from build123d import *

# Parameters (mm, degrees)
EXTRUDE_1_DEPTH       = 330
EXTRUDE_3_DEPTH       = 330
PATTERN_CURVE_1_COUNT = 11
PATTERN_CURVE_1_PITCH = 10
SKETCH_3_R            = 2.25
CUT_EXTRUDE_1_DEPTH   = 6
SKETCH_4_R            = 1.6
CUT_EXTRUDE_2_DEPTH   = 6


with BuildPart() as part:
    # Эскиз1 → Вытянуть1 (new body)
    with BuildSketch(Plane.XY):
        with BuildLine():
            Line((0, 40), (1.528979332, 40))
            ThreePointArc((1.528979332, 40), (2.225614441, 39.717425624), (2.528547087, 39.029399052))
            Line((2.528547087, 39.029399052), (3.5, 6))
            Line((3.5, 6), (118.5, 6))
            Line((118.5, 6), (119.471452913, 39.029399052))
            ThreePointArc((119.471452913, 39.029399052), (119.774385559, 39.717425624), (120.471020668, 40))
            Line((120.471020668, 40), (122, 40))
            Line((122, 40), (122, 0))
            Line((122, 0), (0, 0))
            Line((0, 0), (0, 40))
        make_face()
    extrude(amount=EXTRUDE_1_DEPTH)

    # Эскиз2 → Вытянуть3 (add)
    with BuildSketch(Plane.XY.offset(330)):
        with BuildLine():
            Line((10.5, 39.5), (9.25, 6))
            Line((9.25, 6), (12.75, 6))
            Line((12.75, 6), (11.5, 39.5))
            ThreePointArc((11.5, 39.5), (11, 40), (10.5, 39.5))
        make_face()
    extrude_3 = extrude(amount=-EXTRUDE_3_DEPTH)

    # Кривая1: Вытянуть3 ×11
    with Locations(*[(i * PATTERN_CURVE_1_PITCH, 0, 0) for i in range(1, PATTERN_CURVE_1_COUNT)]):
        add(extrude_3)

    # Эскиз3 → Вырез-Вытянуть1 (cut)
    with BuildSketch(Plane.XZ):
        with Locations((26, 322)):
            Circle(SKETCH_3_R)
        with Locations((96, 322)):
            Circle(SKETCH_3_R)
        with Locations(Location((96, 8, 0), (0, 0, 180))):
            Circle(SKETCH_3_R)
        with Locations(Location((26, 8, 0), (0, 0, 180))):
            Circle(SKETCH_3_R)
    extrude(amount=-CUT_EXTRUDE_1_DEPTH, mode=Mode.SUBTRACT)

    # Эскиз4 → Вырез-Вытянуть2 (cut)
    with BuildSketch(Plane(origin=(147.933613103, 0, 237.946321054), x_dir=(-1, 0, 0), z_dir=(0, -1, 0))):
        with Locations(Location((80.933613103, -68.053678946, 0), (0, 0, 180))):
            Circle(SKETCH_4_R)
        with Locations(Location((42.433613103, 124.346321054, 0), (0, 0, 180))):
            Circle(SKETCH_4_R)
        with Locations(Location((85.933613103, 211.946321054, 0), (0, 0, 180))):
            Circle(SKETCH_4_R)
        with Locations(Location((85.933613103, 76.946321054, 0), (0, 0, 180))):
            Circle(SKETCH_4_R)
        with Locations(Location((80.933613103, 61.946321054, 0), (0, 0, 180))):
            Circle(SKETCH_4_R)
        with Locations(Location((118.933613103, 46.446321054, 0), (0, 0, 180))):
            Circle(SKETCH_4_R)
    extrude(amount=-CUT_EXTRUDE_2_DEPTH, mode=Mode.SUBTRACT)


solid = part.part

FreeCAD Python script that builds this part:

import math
import FreeCAD as App
import Part
import Sketcher
Q = App.Units.Quantity

doc = App.newDocument("Part")
params = doc.addObject("Spreadsheet::Sheet", "Params")
for row, (alias, value) in enumerate([
    ("sketch1_radius", "1 mm"),
    ("sketch1_width", "122 mm"),
    ("sketch1_width2", "115 mm"),
    ("sketch1_height", "40 mm"),
    ("pad1_length", "330 mm"),
    ("sketch2_radius", "0.5 mm"),
    ("sketch2_width", "3.5 mm"),
    ("pad2_length", "330 mm"),
    ("linearpattern_pitch", "10 mm"),
    ("sketch3_diameter", "4.5 mm"),
    ("pocket1_length", "6 mm"),
    ("sketch4_diameter", "3.2 mm"),
    ("pocket2_length", "6 mm"),
], start=1):
    params.set(f"A{row}", alias)
    params.set(f"B{row}", "=" + value)
    params.setAlias(f"B{row}", alias)

body = doc.addObject("PartDesign::Body", "Body")

# Sketch on XY plane
sketch1 = doc.addObject("Sketcher::SketchObject", "Sketch")
body.addObject(sketch1)
sketch1.AttachmentSupport = (doc.XY_Plane, [""])
sketch1.MapMode = "FlatFace"
sketch1.addGeometry([
    Part.LineSegment(App.Vector(1.528979, 40, 0), App.Vector(0, 40, 0)),  # 0
    Part.LineSegment(App.Vector(0, 40, 0), App.Vector(0, 0, 0)),  # 1
    Part.LineSegment(App.Vector(0, 0, 0), App.Vector(122, 0, 0)),  # 2
    Part.LineSegment(App.Vector(122, 0, 0), App.Vector(122, 40, 0)),  # 3
    Part.LineSegment(App.Vector(122, 40, 0), App.Vector(120.471021, 40, 0)),  # 4
    Part.ArcOfCircle(Part.Circle(App.Vector(120.471021, 39, 0), App.Vector(0, 0, 1), 1), math.radians(90), math.radians(178.315316)),  # 5
    Part.LineSegment(App.Vector(119.471453, 39.029399, 0), App.Vector(118.5, 6, 0)),  # 6
    Part.LineSegment(App.Vector(118.5, 6, 0), App.Vector(3.5, 6, 0)),  # 7
    Part.LineSegment(App.Vector(3.5, 6, 0), App.Vector(2.528547, 39.029399, 0)),  # 8
    Part.ArcOfCircle(Part.Circle(App.Vector(1.528979, 39, 0), App.Vector(0, 0, 1), 1), math.radians(1.684684), math.radians(90)),  # 9
], False)
sketch1.addConstraint([
    Sketcher.Constraint("Coincident", 0, 2, 1, 1),
    Sketcher.Constraint("Coincident", 1, 2, 2, 1),
    Sketcher.Constraint("Coincident", 2, 2, 3, 1),
    Sketcher.Constraint("Coincident", 3, 2, 4, 1),
    Sketcher.Constraint("Tangent", 4, 2, 5, 1),
    Sketcher.Constraint("Tangent", 5, 2, 6, 1),
    Sketcher.Constraint("Coincident", 6, 2, 7, 1),
    Sketcher.Constraint("Coincident", 7, 2, 8, 1),
    Sketcher.Constraint("Tangent", 8, 2, 9, 1),
    Sketcher.Constraint("Tangent", 9, 2, 0, 1),
    Sketcher.Constraint("Horizontal", 0),
    Sketcher.Constraint("Vertical", 1),
    Sketcher.Constraint("Horizontal", 2),
    Sketcher.Constraint("Vertical", 3),
    Sketcher.Constraint("Horizontal", 4),
    Sketcher.Constraint("Horizontal", 7),
    Sketcher.Constraint("Coincident", 1, 2, -1, 1),
    Sketcher.Constraint("Equal", 5, 9),
    Sketcher.Constraint("Horizontal", 5, 3, 9, 3),
    Sketcher.Constraint("Horizontal", 5, 2, 8, 2),
    Sketcher.Constraint("Equal", 0, 4),
    Sketcher.Constraint("Radius", 5, Q("1 mm")),
    Sketcher.Constraint("DistanceX", 2, 1, 2, 2, Q("122 mm")),
    Sketcher.Constraint("DistanceX", 7, 2, 7, 1, Q("115 mm")),
    Sketcher.Constraint("DistanceY", 1, 2, 1, 1, Q("40 mm")),
    Sketcher.Constraint("DistanceY", -1, 1, 6, 2, Q("6 mm")),
    Sketcher.Constraint("DistanceX", 0, 2, 0, 1, Q("1.528979 mm")),
])
sketch1.setExpression("Constraints[21]", "Params.sketch1_radius")
sketch1.setExpression("Constraints[22]", "Params.sketch1_width")
sketch1.setExpression("Constraints[23]", "Params.sketch1_width2")
sketch1.setExpression("Constraints[24]", "Params.sketch1_height")
pad1 = doc.addObject("PartDesign::Pad", "Pad")
body.addObject(pad1)
pad1.Profile = sketch1
pad1.setExpression("Length", "Params.pad1_length")

# Sketch on XY plane
sketch2 = doc.addObject("Sketcher::SketchObject", "Sketch001")
body.addObject(sketch2)
sketch2.AttachmentSupport = (doc.XY_Plane, [""])
sketch2.MapMode = "FlatFace"
sketch2.AttachmentOffset = App.Placement(App.Vector(0, 0, 330), App.Rotation())
sketch2.addGeometry([
    Part.LineSegment(App.Vector(10.5, 39.5, 0), App.Vector(9.25, 6, 0)),
    Part.LineSegment(App.Vector(9.25, 6, 0), App.Vector(12.75, 6, 0)),
    Part.LineSegment(App.Vector(12.75, 6, 0), App.Vector(11.5, 39.5, 0)),
    Part.ArcOfCircle(Part.Circle(App.Vector(11, 39.5, 0), App.Vector(0, 0, 1), 0.5), math.radians(0), math.radians(180)),
], False)
sketch2.addConstraint([
    Sketcher.Constraint("Coincident", 0, 2, 1, 1),
    Sketcher.Constraint("Coincident", 1, 2, 2, 1),
    Sketcher.Constraint("Coincident", 2, 2, 3, 1),
    Sketcher.Constraint("Coincident", 3, 2, 0, 1),
    Sketcher.Constraint("Horizontal", 1),
    Sketcher.Constraint("Horizontal", 3, 3, 2, 2),
    Sketcher.Constraint("Horizontal", 2, 2, 3, 2),
    Sketcher.Constraint("Equal", 0, 2),
    Sketcher.Constraint("Radius", 3, Q("0.5 mm")),
    Sketcher.Constraint("DistanceX", 1, 1, 1, 2, Q("3.5 mm")),
    Sketcher.Constraint("DistanceX", -1, 1, 3, 3, Q("11 mm")),
    Sketcher.Constraint("DistanceY", -1, 1, 0, 2, Q("6 mm")),
    Sketcher.Constraint("DistanceY", -1, 1, 3, 3, Q("39.5 mm")),
])
sketch2.setExpression("Constraints[8]", "Params.sketch2_radius")
sketch2.setExpression("Constraints[9]", "Params.sketch2_width")
pad2 = doc.addObject("PartDesign::Pad", "Pad001")
body.addObject(pad2)
pad2.Profile = sketch2
pad2.setExpression("Length", "Params.pad2_length")
pad2.Reversed = True
doc.recompute()

linearpattern = doc.addObject("PartDesign::LinearPattern", "LinearPattern")
body.addObject(linearpattern)
linearpattern.Originals = [pad2]
linearpattern.Direction = (doc.X_Axis, [""])
linearpattern.Mode = "offset"
linearpattern.setExpression("Offset", "Params.linearpattern_pitch")
linearpattern.Occurrences = 11
body.Tip = linearpattern

# Sketch on XZ plane
sketch3 = doc.addObject("Sketcher::SketchObject", "Sketch002")
body.addObject(sketch3)
sketch3.AttachmentSupport = (doc.XZ_Plane, [""])
sketch3.MapMode = "FlatFace"
sketch3.addGeometry([
    Part.Circle(App.Vector(26, 322, 0), App.Vector(0, 0, 1), 2.25),
    Part.Circle(App.Vector(96, 322, 0), App.Vector(0, 0, 1), 2.25),
    Part.Circle(App.Vector(96, 8, 0), App.Vector(0, 0, 1), 2.25),
    Part.Circle(App.Vector(26, 8, 0), App.Vector(0, 0, 1), 2.25),
], False)
sketch3.addConstraint([
    Sketcher.Constraint("Equal", 0, 1),
    Sketcher.Constraint("Equal", 1, 2),
    Sketcher.Constraint("Equal", 2, 3),
    Sketcher.Constraint("Horizontal", 0, 3, 1, 3),
    Sketcher.Constraint("Horizontal", 2, 3, 3, 3),
    Sketcher.Constraint("Vertical", 1, 3, 2, 3),
    Sketcher.Constraint("Vertical", 0, 3, 3, 3),
    Sketcher.Constraint("Diameter", 0, Q("4.5 mm")),
    Sketcher.Constraint("DistanceX", -1, 1, 0, 3, Q("26 mm")),
    Sketcher.Constraint("DistanceY", -1, 1, 0, 3, Q("322 mm")),
    Sketcher.Constraint("DistanceX", -1, 1, 1, 3, Q("96 mm")),
    Sketcher.Constraint("DistanceY", -1, 1, 2, 3, Q("8 mm")),
])
sketch3.setExpression("Constraints[7]", "Params.sketch3_diameter")
pocket1 = doc.addObject("PartDesign::Pocket", "Pocket")
body.addObject(pocket1)
pocket1.Profile = sketch3
pocket1.setExpression("Length", "Params.pocket1_length")

# Sketch on XZ plane
sketch4 = doc.addObject("Sketcher::SketchObject", "Sketch003")
body.addObject(sketch4)
sketch4.AttachmentSupport = (doc.XZ_Plane, [""])
sketch4.MapMode = "FlatFace"
sketch4.addGeometry([
    Part.Circle(App.Vector(67, 306, 0), App.Vector(0, 0, 1), 1.6),  # 0
    Part.Circle(App.Vector(105.5, 113.6, 0), App.Vector(0, 0, 1), 1.6),  # 1
    Part.Circle(App.Vector(62, 26, 0), App.Vector(0, 0, 1), 1.6),  # 2
    Part.Circle(App.Vector(62, 161, 0), App.Vector(0, 0, 1), 1.6),  # 3
    Part.Circle(App.Vector(67, 176, 0), App.Vector(0, 0, 1), 1.6),  # 4
    Part.Circle(App.Vector(29, 191.5, 0), App.Vector(0, 0, 1), 1.6),  # 5
], False)
sketch4.addConstraint([
    Sketcher.Constraint("Equal", 0, 1),
    Sketcher.Constraint("Equal", 1, 2),
    Sketcher.Constraint("Equal", 2, 3),
    Sketcher.Constraint("Equal", 3, 4),
    Sketcher.Constraint("Equal", 4, 5),
    Sketcher.Constraint("Vertical", 2, 3, 3, 3),
    Sketcher.Constraint("Vertical", 0, 3, 4, 3),
    Sketcher.Constraint("Diameter", 0, Q("3.2 mm")),
    Sketcher.Constraint("DistanceX", -1, 1, 0, 3, Q("67 mm")),
    Sketcher.Constraint("DistanceY", -1, 1, 0, 3, Q("306 mm")),
    Sketcher.Constraint("DistanceX", -1, 1, 2, 3, Q("62 mm")),
    Sketcher.Constraint("DistanceY", -1, 1, 2, 3, Q("26 mm")),
    Sketcher.Constraint("DistanceY", -1, 1, 3, 3, Q("161 mm")),
    Sketcher.Constraint("DistanceY", -1, 1, 4, 3, Q("176 mm")),
    Sketcher.Constraint("DistanceX", -1, 1, 5, 3, Q("29 mm")),
    Sketcher.Constraint("DistanceX", -1, 1, 1, 3, Q("105.5 mm")),
    Sketcher.Constraint("DistanceY", -1, 1, 1, 3, Q("113.6 mm")),
    Sketcher.Constraint("DistanceY", -1, 1, 5, 3, Q("191.5 mm")),
])
sketch4.setExpression("Constraints[7]", "Params.sketch4_diameter")
pocket2 = doc.addObject("PartDesign::Pocket", "Pocket001")
body.addObject(pocket2)
pocket2.Profile = sketch4
pocket2.setExpression("Length", "Params.pocket2_length")

doc.recompute()
